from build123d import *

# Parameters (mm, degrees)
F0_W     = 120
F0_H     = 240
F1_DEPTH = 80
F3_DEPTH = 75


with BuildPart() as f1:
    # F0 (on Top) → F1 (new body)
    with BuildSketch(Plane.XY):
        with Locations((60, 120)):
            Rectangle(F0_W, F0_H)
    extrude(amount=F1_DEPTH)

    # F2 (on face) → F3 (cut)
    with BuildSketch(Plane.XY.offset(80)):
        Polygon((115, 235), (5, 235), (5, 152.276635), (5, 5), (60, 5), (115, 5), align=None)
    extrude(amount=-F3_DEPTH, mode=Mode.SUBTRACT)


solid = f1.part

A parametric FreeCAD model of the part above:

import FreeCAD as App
import Part
import Sketcher
from FreeCAD import Vector

doc = App.newDocument("Part")
body = doc.addObject("PartDesign::Body", "Body")

# Sketch on XY plane
sketch1 = body.newObject("Sketcher::SketchObject", "Sketch")
sketch1.AttachmentSupport = (doc.getObject("XY_Plane"), [""])
sketch1.MapMode = "FlatFace"
sketch1.addGeometry(Part.LineSegment(Vector(0, 240, 0), Vector(0, 0, 0)), False)
sketch1.addGeometry(Part.LineSegment(Vector(0, 0, 0), Vector(120, 0, 0)), False)
sketch1.addGeometry(Part.LineSegment(Vector(120, 0, 0), Vector(120, 240, 0)), False)
sketch1.addGeometry(Part.LineSegment(Vector(120, 240, 0), Vector(0, 240, 0)), False)
sketch1.addConstraint(Sketcher.Constraint("Coincident", 0, 2, 1, 1))
sketch1.addConstraint(Sketcher.Constraint("Coincident", 1, 2, 2, 1))
sketch1.addConstraint(Sketcher.Constraint("Coincident", 2, 2, 3, 1))
sketch1.addConstraint(Sketcher.Constraint("Coincident", 3, 2, 0, 1))
sketch1.addConstraint(Sketcher.Constraint("Vertical", 0))
sketch1.addConstraint(Sketcher.Constraint("Horizontal", 1))
sketch1.addConstraint(Sketcher.Constraint("Vertical", 2))
sketch1.addConstraint(Sketcher.Constraint("Horizontal", 3))
sketch1.addConstraint(Sketcher.Constraint("Coincident", 0, 2, -1, 1))
sketch1.addConstraint(Sketcher.Constraint("DistanceX", 1, 1, 1, 2, 120.0))
sketch1.addConstraint(Sketcher.Constraint("DistanceY", 0, 2, 0, 1, 240.0))
pad1 = body.newObject("PartDesign::Pad", "Pad")
pad1.Profile = sketch1
pad1.Length = 80

# Sketch on XY plane
sketch2 = body.newObject("Sketcher::SketchObject", "Sketch001")
sketch2.AttachmentSupport = (doc.getObject("XY_Plane"), [""])
sketch2.MapMode = "FlatFace"
sketch2.AttachmentOffset = App.Placement(Vector(0, 0, 80), App.Rotation())
sketch2.addGeometry(Part.LineSegment(Vector(115, 235, 0), Vector(5, 235, 0)), False)
sketch2.addGeometry(Part.LineSegment(Vector(5, 235, 0), Vector(5, 5, 0)), False)
sketch2.addGeometry(Part.LineSegment(Vector(5, 5, 0), Vector(115, 5, 0)), False)
sketch2.addGeometry(Part.LineSegment(Vector(115, 5, 0), Vector(115, 235, 0)), False)
sketch2.addConstraint(Sketcher.Constraint("Coincident", 0, 2, 1, 1))
sketch2.addConstraint(Sketcher.Constraint("Coincident", 1, 2, 2, 1))
sketch2.addConstraint(Sketcher.Constraint("Coincident", 2, 2, 3, 1))
sketch2.addConstraint(Sketcher.Constraint("Coincident", 3, 2, 0, 1))
sketch2.addConstraint(Sketcher.Constraint("Horizontal", 0))
sketch2.addConstraint(Sketcher.Constraint("Vertical", 1))
sketch2.addConstraint(Sketcher.Constraint("Horizontal", 2))
sketch2.addConstraint(Sketcher.Constraint("Vertical", 3))
sketch2.addConstraint(Sketcher.Constraint("DistanceX", 0, 2, 0, 1, 110.0))
sketch2.addConstraint(Sketcher.Constraint("DistanceY", 1, 2, 1, 1, 230.0))
sketch2.addConstraint(Sketcher.Constraint("DistanceX", -1, 1, 0, 2, 5.0))
sketch2.addConstraint(Sketcher.Constraint("DistanceY", -1, 1, 0, 2, 235.0))
pocket1 = body.newObject("PartDesign::Pocket", "Pocket")
pocket1.Profile = sketch2
pocket1.Length = 75

doc.recompute()
